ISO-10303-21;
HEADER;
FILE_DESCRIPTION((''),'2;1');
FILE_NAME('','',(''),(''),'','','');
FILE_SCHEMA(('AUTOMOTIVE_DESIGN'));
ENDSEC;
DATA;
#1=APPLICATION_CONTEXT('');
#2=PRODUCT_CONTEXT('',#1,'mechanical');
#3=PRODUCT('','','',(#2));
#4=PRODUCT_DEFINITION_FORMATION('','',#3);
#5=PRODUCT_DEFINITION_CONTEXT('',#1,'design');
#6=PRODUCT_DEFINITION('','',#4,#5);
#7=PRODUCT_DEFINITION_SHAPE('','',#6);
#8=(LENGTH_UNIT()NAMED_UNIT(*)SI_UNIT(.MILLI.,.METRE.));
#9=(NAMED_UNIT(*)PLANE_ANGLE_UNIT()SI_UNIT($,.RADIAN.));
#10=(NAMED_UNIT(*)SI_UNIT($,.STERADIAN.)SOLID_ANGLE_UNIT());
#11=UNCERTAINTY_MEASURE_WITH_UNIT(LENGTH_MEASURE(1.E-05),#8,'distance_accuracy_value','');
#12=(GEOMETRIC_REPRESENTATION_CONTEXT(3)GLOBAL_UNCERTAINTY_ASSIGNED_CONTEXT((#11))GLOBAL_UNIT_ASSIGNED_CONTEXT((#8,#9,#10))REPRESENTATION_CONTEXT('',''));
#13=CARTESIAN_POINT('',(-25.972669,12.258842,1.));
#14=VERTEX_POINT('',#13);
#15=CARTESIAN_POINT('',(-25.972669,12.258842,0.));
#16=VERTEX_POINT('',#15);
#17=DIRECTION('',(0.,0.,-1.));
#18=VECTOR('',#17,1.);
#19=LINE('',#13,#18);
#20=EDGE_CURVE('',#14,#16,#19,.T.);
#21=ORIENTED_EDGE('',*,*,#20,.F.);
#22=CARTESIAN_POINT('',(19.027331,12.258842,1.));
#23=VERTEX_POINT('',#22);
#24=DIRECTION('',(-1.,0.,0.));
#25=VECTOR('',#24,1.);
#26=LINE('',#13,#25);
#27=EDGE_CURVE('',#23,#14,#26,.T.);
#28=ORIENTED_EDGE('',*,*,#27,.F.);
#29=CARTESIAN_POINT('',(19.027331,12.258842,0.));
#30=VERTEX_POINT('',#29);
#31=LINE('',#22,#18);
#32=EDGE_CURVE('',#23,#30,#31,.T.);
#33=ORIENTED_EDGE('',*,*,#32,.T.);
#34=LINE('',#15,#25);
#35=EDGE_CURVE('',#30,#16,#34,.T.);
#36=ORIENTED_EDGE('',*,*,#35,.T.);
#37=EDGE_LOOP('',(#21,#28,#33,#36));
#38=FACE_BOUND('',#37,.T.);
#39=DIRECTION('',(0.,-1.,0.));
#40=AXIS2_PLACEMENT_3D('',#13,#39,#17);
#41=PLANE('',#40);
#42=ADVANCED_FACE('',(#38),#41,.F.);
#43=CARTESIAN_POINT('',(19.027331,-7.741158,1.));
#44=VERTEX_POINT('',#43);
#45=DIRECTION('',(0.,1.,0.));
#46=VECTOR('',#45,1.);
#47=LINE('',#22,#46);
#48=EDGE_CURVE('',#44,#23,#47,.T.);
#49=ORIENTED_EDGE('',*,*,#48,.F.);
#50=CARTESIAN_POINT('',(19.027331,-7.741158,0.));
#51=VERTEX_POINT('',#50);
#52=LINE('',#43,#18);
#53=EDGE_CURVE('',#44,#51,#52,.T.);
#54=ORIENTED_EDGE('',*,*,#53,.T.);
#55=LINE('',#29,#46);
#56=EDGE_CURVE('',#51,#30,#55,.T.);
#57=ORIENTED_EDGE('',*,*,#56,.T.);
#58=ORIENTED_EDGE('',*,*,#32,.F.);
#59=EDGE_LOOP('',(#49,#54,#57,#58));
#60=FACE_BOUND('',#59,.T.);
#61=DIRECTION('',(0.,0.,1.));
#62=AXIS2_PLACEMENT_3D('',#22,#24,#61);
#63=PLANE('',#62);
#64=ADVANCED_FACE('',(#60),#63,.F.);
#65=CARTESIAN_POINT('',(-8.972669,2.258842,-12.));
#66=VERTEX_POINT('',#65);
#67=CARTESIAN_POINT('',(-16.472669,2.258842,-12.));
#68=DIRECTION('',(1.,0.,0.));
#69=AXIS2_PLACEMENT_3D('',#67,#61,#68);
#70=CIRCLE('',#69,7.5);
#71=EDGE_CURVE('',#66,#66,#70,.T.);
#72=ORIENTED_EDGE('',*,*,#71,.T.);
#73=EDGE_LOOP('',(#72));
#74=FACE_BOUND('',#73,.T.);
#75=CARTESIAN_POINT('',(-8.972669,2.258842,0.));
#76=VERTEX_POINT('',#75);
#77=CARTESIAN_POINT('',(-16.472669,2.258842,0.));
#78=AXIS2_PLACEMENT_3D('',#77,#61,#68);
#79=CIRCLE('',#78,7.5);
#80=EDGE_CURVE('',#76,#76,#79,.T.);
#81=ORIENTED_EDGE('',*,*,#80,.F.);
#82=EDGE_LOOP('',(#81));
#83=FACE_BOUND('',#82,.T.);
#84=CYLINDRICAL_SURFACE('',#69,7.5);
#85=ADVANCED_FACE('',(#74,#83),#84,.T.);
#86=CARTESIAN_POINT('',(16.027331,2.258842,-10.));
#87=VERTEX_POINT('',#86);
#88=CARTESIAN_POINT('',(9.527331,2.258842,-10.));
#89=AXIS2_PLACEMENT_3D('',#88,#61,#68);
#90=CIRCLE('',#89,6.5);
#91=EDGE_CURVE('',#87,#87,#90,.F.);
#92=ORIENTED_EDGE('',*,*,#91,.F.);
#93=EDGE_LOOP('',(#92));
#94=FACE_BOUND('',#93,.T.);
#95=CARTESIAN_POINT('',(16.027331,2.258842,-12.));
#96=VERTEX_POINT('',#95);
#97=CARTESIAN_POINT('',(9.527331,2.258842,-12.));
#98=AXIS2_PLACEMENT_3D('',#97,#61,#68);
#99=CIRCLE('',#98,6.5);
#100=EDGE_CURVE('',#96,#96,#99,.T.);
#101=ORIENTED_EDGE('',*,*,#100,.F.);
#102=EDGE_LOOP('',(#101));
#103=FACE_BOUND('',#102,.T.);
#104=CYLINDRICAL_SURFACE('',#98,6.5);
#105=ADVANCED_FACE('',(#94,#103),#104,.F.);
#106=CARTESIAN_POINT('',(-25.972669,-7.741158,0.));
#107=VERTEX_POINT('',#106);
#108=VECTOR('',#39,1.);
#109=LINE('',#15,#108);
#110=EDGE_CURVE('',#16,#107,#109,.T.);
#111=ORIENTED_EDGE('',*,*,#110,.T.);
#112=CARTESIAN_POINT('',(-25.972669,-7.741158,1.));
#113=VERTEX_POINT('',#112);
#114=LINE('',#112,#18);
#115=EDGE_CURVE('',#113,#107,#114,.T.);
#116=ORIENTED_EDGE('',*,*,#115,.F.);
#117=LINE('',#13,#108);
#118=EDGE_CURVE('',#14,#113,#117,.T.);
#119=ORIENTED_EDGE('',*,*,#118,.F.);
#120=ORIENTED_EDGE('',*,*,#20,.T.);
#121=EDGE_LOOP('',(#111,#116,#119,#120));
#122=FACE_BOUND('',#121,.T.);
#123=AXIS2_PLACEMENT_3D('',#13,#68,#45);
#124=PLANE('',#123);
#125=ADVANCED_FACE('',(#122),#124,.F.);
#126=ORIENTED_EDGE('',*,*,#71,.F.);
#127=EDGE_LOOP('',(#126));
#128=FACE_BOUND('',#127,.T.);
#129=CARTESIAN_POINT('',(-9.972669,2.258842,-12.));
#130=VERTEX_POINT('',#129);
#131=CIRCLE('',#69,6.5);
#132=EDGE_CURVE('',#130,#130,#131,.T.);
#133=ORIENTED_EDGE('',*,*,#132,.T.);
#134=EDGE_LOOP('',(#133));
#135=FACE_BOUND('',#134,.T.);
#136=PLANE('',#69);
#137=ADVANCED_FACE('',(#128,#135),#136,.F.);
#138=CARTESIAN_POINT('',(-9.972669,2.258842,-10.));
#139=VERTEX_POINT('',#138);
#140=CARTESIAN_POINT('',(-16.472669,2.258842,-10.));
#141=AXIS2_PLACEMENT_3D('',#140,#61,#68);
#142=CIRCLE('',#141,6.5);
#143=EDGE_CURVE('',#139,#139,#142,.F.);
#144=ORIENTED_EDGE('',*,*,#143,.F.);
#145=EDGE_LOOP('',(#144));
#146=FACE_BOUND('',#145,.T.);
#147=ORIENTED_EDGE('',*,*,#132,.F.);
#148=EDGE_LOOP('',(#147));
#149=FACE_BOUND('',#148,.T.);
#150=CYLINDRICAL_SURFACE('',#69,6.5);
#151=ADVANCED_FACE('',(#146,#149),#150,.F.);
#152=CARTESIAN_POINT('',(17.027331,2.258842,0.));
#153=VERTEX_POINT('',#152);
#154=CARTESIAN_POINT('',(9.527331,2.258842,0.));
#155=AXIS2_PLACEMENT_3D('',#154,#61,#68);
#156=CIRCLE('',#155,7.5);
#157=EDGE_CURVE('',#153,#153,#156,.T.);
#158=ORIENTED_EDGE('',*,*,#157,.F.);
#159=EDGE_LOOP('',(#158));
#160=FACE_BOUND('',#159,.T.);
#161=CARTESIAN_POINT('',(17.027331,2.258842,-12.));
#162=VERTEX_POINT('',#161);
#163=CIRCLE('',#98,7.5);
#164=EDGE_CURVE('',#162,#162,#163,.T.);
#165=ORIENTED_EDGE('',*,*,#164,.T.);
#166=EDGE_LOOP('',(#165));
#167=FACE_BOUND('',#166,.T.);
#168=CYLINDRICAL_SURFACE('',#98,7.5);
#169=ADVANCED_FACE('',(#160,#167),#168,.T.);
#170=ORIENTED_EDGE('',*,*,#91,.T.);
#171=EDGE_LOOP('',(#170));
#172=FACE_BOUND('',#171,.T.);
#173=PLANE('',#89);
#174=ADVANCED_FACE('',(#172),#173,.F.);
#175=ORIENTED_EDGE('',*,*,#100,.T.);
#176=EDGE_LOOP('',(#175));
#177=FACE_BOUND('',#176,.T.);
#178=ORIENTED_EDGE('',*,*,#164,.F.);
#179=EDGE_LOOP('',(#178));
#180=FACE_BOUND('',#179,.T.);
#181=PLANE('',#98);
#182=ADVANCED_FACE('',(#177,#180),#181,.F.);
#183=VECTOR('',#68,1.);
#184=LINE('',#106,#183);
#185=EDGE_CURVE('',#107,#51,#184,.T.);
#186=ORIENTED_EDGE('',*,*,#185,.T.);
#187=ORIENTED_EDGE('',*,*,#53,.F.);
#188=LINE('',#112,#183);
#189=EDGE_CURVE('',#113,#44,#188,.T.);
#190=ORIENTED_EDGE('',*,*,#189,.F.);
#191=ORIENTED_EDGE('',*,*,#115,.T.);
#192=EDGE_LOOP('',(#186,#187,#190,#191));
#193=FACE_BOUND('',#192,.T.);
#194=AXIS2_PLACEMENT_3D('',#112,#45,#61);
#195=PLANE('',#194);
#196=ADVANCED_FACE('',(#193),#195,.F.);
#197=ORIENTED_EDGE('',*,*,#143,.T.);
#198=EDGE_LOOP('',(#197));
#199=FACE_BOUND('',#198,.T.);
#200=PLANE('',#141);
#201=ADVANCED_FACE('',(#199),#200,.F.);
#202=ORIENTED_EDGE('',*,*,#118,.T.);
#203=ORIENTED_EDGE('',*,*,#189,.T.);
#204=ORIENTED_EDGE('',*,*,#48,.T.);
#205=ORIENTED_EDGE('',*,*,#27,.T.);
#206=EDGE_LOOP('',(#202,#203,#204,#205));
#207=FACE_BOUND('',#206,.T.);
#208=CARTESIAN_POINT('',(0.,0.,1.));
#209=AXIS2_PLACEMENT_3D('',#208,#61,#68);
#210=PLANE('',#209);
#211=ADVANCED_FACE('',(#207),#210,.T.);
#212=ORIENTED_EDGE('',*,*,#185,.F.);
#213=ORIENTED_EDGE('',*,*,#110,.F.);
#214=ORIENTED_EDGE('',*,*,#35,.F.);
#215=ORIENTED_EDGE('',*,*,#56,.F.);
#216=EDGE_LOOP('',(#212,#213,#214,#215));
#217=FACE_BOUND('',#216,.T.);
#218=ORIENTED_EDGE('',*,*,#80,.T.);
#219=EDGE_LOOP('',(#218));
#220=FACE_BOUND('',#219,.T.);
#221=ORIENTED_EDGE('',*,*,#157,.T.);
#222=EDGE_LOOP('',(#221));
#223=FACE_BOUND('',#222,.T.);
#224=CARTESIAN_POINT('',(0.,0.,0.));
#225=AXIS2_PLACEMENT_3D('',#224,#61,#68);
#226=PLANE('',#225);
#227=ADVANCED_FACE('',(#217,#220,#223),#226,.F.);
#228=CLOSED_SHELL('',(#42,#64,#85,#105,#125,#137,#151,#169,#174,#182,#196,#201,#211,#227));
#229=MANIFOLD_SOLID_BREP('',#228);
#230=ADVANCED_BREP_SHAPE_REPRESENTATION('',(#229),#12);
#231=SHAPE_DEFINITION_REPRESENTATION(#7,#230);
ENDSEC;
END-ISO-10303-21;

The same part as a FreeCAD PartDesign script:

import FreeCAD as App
import Part
import Sketcher
Q = App.Units.Quantity

doc = App.newDocument("Part")
body = doc.addObject("PartDesign::Body", "Body")

# Sketch on XY plane
sketch1 = body.newObject("Sketcher::SketchObject", "Sketch")
sketch1.AttachmentSupport = (doc.getObject("XY_Plane"), [""])
sketch1.MapMode = "FlatFace"
sketch1.addGeometry([
    Part.LineSegment(App.Vector(-26, 12, 0), App.Vector(-26, -8, 0)),
    Part.LineSegment(App.Vector(-26, -8, 0), App.Vector(19, -8, 0)),
    Part.LineSegment(App.Vector(19, -8, 0), App.Vector(19, 12, 0)),
    Part.LineSegment(App.Vector(19, 12, 0), App.Vector(-26, 12, 0)),
], False)
sketch1.addConstraint([
    Sketcher.Constraint("Coincident", 0, 2, 1, 1),
    Sketcher.Constraint("Coincident", 1, 2, 2, 1),
    Sketcher.Constraint("Coincident", 2, 2, 3, 1),
    Sketcher.Constraint("Coincident", 3, 2, 0, 1),
    Sketcher.Constraint("Vertical", 0),
    Sketcher.Constraint("Horizontal", 1),
    Sketcher.Constraint("Vertical", 2),
    Sketcher.Constraint("Horizontal", 3),
    Sketcher.Constraint("DistanceX", 1, 1, 1, 2, Q("45 mm")),
    Sketcher.Constraint("DistanceY", 0, 2, 0, 1, Q("20 mm")),
    Sketcher.Constraint("DistanceX", 0, 2, -1, 1, Q("25.972669 mm")),
    Sketcher.Constraint("DistanceY", 0, 2, -1, 1, Q("7.741158 mm")),
])
pad1 = body.newObject("PartDesign::Pad", "Pad")
pad1.Profile = sketch1
pad1.Length = 1

# Sketch on XY plane
sketch2 = body.newObject("Sketcher::SketchObject", "Sketch001")
sketch2.AttachmentSupport = (doc.getObject("XY_Plane"), [""])
sketch2.MapMode = "FlatFace"
sketch2.addGeometry([
    Part.Circle(App.Vector(-16, 2, 0), App.Vector(0, 0, 1), 8),
    Part.Circle(App.Vector(-16, 2, 0), App.Vector(0, 0, 1), 6),
    Part.Circle(App.Vector(10, 2, 0), App.Vector(0, 0, 1), 8),
    Part.Circle(App.Vector(10, 2, 0), App.Vector(0, 0, 1), 6),
], False)
sketch2.addConstraint([
    Sketcher.Constraint("Coincident", 1, 3, 0, 3),
    Sketcher.Constraint("Coincident", 3, 3, 2, 3),
    Sketcher.Constraint("Equal", 0, 2),
    Sketcher.Constraint("Equal", 1, 3),
    Sketcher.Constraint("Horizontal", 1, 3, 2, 3),
    Sketcher.Constraint("Diameter", 0, Q("15 mm")),
    Sketcher.Constraint("Diameter", 1, Q("13 mm")),
    Sketcher.Constraint("DistanceX", 0, 3, 2, 3, Q("26 mm")),
    Sketcher.Constraint("DistanceX", 0, 3, -1, 1, Q("16.472669 mm")),
    Sketcher.Constraint("DistanceY", -1, 1, 0, 3, Q("2.258842 mm")),
])
pad2 = body.newObject("PartDesign::Pad", "Pad001")
pad2.Profile = sketch2
pad2.Length = 12
pad2.Reversed = True

# Sketch on XY plane
sketch3 = body.newObject("Sketcher::SketchObject", "Sketch002")
sketch3.AttachmentSupport = (doc.getObject("XY_Plane"), [""])
sketch3.MapMode = "FlatFace"
sketch3.addGeometry([
    Part.Circle(App.Vector(10, 2, 0), App.Vector(0, 0, 1), 6),
    Part.Circle(App.Vector(-16, 2, 0), App.Vector(0, 0, 1), 6),
], False)
sketch3.addConstraint([
    Sketcher.Constraint("Equal", 0, 1),
    Sketcher.Constraint("Horizontal", 0, 3, 1, 3),
    Sketcher.Constraint("Diameter", 0, Q("13 mm")),
    Sketcher.Constraint("DistanceX", 1, 3, 0, 3, Q("26 mm")),
    Sketcher.Constraint("DistanceX", -1, 1, 0, 3, Q("9.527331 mm")),
    Sketcher.Constraint("DistanceY", -1, 1, 0, 3, Q("2.258842 mm")),
])
pad3 = body.newObject("PartDesign::Pad", "Pad002")
pad3.Profile = sketch3
pad3.Length = 10
pad3.Reversed = True

doc.recompute()
